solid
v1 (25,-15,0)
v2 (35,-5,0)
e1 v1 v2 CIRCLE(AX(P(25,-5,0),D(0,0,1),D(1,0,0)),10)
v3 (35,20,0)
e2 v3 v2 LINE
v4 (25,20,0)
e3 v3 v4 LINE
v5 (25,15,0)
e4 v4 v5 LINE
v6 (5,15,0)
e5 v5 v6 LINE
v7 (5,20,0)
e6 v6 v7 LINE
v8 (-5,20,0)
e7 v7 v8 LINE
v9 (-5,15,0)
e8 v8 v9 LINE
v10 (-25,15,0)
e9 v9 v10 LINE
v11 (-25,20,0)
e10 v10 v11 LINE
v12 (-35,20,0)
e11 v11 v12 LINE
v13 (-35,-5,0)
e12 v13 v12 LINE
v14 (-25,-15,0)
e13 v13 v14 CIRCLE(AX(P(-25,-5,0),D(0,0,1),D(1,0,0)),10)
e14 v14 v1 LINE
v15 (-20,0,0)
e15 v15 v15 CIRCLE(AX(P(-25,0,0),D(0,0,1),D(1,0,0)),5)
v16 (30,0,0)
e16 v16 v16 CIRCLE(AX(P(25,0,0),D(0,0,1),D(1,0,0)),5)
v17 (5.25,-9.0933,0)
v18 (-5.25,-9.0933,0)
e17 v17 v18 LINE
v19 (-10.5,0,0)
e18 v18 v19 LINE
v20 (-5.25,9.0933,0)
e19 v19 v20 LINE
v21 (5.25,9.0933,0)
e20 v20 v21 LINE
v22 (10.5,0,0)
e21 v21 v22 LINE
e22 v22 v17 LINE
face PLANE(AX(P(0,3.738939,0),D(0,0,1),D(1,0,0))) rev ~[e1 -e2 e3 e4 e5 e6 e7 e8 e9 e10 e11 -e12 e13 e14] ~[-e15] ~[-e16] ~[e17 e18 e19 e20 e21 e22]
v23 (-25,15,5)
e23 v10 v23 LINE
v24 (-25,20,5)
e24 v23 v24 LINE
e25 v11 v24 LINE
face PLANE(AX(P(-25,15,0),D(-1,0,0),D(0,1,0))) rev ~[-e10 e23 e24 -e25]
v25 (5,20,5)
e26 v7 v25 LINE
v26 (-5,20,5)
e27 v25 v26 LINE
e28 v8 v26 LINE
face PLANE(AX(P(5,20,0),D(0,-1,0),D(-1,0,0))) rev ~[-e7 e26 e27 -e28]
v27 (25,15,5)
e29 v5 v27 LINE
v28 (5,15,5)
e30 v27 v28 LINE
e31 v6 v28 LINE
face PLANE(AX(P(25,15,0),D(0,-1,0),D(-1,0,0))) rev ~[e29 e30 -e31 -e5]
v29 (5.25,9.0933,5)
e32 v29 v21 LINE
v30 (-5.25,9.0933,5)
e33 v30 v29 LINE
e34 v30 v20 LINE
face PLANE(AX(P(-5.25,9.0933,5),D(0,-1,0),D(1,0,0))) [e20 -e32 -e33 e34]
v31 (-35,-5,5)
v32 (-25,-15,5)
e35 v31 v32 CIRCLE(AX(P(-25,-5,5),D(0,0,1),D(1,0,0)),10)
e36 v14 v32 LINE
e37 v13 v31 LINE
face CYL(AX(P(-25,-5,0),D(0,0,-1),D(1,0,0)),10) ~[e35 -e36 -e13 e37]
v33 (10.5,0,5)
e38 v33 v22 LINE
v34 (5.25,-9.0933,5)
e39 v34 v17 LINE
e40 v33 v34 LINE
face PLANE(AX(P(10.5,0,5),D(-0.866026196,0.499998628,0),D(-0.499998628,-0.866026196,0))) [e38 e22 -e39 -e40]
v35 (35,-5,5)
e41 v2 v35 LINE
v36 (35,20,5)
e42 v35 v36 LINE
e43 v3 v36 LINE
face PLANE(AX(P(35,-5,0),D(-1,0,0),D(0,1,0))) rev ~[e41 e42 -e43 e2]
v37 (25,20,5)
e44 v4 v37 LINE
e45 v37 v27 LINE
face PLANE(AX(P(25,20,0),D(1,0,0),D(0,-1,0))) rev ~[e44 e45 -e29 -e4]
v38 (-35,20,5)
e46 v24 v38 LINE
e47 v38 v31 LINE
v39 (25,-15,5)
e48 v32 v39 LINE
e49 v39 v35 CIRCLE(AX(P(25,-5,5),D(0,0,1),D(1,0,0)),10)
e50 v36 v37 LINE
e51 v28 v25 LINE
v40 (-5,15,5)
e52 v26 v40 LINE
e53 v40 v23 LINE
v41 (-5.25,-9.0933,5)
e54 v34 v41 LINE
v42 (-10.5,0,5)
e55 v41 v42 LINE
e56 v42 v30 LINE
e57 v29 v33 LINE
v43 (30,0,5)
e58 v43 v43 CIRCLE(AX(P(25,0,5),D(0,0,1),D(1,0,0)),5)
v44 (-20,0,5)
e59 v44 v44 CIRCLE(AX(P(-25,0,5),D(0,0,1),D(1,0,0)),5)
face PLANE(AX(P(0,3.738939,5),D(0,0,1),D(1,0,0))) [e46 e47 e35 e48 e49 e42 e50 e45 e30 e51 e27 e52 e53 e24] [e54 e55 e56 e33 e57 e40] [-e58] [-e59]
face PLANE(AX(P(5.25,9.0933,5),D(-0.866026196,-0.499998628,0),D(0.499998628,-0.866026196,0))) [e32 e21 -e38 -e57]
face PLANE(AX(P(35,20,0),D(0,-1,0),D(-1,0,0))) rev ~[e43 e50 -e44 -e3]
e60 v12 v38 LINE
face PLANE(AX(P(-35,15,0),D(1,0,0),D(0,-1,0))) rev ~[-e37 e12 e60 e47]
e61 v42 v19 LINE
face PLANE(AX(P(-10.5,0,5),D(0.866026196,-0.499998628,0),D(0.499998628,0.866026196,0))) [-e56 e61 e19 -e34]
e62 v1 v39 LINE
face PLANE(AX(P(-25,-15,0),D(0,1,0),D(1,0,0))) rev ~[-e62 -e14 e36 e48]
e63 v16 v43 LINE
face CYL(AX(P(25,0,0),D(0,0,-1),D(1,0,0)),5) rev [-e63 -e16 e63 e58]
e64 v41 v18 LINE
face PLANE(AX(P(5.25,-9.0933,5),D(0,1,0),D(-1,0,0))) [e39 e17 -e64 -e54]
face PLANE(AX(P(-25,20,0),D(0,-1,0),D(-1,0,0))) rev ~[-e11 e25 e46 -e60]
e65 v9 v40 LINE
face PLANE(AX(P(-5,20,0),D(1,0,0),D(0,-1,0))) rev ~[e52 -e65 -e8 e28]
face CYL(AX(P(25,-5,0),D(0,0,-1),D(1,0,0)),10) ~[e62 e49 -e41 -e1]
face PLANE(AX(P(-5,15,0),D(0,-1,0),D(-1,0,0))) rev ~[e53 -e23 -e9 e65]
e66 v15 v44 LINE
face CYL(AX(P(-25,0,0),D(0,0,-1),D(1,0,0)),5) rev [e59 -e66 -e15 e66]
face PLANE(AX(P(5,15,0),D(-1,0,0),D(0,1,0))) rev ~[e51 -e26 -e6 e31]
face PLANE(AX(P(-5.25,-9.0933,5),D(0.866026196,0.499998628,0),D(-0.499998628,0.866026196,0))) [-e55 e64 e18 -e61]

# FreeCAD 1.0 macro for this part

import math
import FreeCAD as App
import Part
import Sketcher
Q = App.Units.Quantity


def add_polygon(sketch, points):
    """Adds a closed chain of lines whose ends are joined by coincident constraints."""
    first, n = sketch.GeometryCount, len(points)
    for a, b in zip(points, points[1:] + points[:1]):
        sketch.addGeometry(Part.LineSegment(App.Vector(*a, 0), App.Vector(*b, 0)), False)
    for i in range(n):
        sketch.addConstraint(Sketcher.Constraint("Coincident", first + i, 2, first + (i + 1) % n, 1))

doc = App.newDocument("Part")
body = doc.addObject("PartDesign::Body", "Body")

sketch1 = body.newObject("Sketcher::SketchObject", "Sketch")
sketch1.AttachmentSupport = (doc.getObject("XY_Plane"), [""])
sketch1.MapMode = "FlatFace"
sketch1.addGeometry([
    Part.ArcOfCircle(Part.Circle(App.Vector(-25, -5, 0), App.Vector(0, 0, 1), 10), math.radians(180), math.radians(270)),
    Part.LineSegment(App.Vector(-25, -15, 0), App.Vector(25, -15, 0)),
    Part.ArcOfCircle(Part.Circle(App.Vector(25, -5, 0), App.Vector(0, 0, 1), 10), math.radians(-90), math.radians(0)),
    Part.LineSegment(App.Vector(35, -5, 0), App.Vector(35, 20, 0)),
    Part.LineSegment(App.Vector(35, 20, 0), App.Vector(25, 20, 0)),
    Part.LineSegment(App.Vector(25, 20, 0), App.Vector(25, 15, 0)),
    Part.LineSegment(App.Vector(25, 15, 0), App.Vector(5, 15, 0)),
    Part.LineSegment(App.Vector(5, 15, 0), App.Vector(5, 20, 0)),
    Part.LineSegment(App.Vector(5, 20, 0), App.Vector(-5, 20, 0)),
    Part.LineSegment(App.Vector(-5, 20, 0), App.Vector(-5, 15, 0)),
    Part.LineSegment(App.Vector(-5, 15, 0), App.Vector(-25, 15, 0)),
    Part.LineSegment(App.Vector(-25, 15, 0), App.Vector(-25, 20, 0)),
    Part.LineSegment(App.Vector(-25, 20, 0), App.Vector(-35, 20, 0)),
    Part.LineSegment(App.Vector(-35, 20, 0), App.Vector(-35, -5, 0)),
    Part.Circle(App.Vector(-25, 0, 0), App.Vector(0, 0, 1), 5),
    Part.Circle(App.Vector(0, 0, 0), App.Vector(0, 0, 1), 8),
    Part.Circle(App.Vector(25, 0, 0), App.Vector(0, 0, 1), 5),
], False)
sketch1.addConstraint([
    Sketcher.Constraint("Tangent", 0, 2, 1, 1),
    Sketcher.Constraint("Tangent", 1, 2, 2, 1),
    Sketcher.Constraint("Tangent", 2, 2, 3, 1),
    Sketcher.Constraint("Coincident", 3, 2, 4, 1),
    Sketcher.Constraint("Coincident", 4, 2, 5, 1),
    Sketcher.Constraint("Coincident", 5, 2, 6, 1),
    Sketcher.Constraint("Coincident", 6, 2, 7, 1),
    Sketcher.Constraint("Coincident", 7, 2, 8, 1),
    Sketcher.Constraint("Coincident", 8, 2, 9, 1),
    Sketcher.Constraint("Coincident", 9, 2, 10, 1),
    Sketcher.Constraint("Coincident", 10, 2, 11, 1),
    Sketcher.Constraint("Coincident", 11, 2, 12, 1),
    Sketcher.Constraint("Coincident", 12, 2, 13, 1),
    Sketcher.Constraint("Tangent", 13, 2, 0, 1),
    Sketcher.Constraint("Horizontal", 1),
    Sketcher.Constraint("Vertical", 3),
    Sketcher.Constraint("Horizontal", 4),
    Sketcher.Constraint("Vertical", 5),
    Sketcher.Constraint("Horizontal", 6),
    Sketcher.Constraint("Vertical", 7),
    Sketcher.Constraint("Horizontal", 8),
    Sketcher.Constraint("Vertical", 9),
    Sketcher.Constraint("Horizontal", 10),
    Sketcher.Constraint("Vertical", 11),
    Sketcher.Constraint("Horizontal", 12),
    Sketcher.Constraint("Vertical", 13),
    Sketcher.Constraint("Coincident", 15, 3, -1, 1),
    Sketcher.Constraint("Equal", 0, 2),
    Sketcher.Constraint("Equal", 14, 16),
    Sketcher.Constraint("Symmetric", 14, 3, 16, 3, -1, 1),
    Sketcher.Constraint("Symmetric", 0, 2, 5, 2, -1, 1),
    Sketcher.Constraint("Symmetric", 1, 2, 10, 2, -1, 1),
    Sketcher.Constraint("Symmetric", 4, 2, 11, 2, -2),
    Sketcher.Constraint("PointOnObject", 14, 3, -1),
    Sketcher.Constraint("Horizontal", 4, 2, 7, 2),
    Sketcher.Constraint("Vertical", 0, 3, 14, 3),
    Sketcher.Constraint("Equal", 4, 8),
    Sketcher.Constraint("Equal", 6, 10),
    Sketcher.Constraint("Diameter", 14, Q("10 mm")),
    Sketcher.Constraint("Diameter", 15, Q("15 mm")),
    Sketcher.Constraint("Radius", 0, Q("10 mm")),
    Sketcher.Constraint("DistanceX", 1, 1, 1, 2, Q("50 mm")),
    Sketcher.Constraint("DistanceY", 3, 1, 3, 2, Q("25 mm")),
    Sketcher.Constraint("DistanceY", 5, 2, 5, 1, Q("5 mm")),
])
pad1 = body.newObject("PartDesign::Pad", "Pad")
pad1.Profile = sketch1
pad1.Length = 5

sketch2 = body.newObject("Sketcher::SketchObject", "Sketch001")
sketch2.AttachmentSupport = (doc.getObject("XY_Plane"), [""])
sketch2.MapMode = "FlatFace"
sketch2.AttachmentOffset = App.Placement(App.Vector(0, 0, 5), App.Rotation())
add_polygon(sketch2, [(5, -9), (10, 0), (5, 9), (-5, 9), (-10, 0), (-5, -9)])
sketch2.addGeometry(Part.Circle(App.Vector(0, 0, 0), App.Vector(0, 0, 1), 8), False)
sketch2.addConstraint([
    Sketcher.Constraint("Horizontal", 2),
    Sketcher.Constraint("Horizontal", 5),
    Sketcher.Constraint("Coincident", 6, 3, -1, 1),
    Sketcher.Constraint("Symmetric", 0, 2, 3, 2, -1, 1),
    Sketcher.Constraint("Symmetric", 1, 2, 4, 2, -1, 1),
    Sketcher.Constraint("PointOnObject", 0, 2, -1),
    Sketcher.Constraint("Parallel", 0, 3),
    Sketcher.Constraint("Vertical", 2, 2, 4, 2),
    Sketcher.Constraint("Diameter", 6, Q("15 mm")),
    Sketcher.Constraint("Angle", 0, Q("60 deg")),
    Sketcher.Constraint("DistanceX", 2, 2, 2, 1, Q("10.5 mm")),
    Sketcher.Constraint("DistanceX", 3, 2, 0, 2, Q("21 mm")),
])
pocket1 = body.newObject("PartDesign::Pocket", "Pocket")
pocket1.Profile = sketch2
pocket1.Length = 5

doc.recompute()
